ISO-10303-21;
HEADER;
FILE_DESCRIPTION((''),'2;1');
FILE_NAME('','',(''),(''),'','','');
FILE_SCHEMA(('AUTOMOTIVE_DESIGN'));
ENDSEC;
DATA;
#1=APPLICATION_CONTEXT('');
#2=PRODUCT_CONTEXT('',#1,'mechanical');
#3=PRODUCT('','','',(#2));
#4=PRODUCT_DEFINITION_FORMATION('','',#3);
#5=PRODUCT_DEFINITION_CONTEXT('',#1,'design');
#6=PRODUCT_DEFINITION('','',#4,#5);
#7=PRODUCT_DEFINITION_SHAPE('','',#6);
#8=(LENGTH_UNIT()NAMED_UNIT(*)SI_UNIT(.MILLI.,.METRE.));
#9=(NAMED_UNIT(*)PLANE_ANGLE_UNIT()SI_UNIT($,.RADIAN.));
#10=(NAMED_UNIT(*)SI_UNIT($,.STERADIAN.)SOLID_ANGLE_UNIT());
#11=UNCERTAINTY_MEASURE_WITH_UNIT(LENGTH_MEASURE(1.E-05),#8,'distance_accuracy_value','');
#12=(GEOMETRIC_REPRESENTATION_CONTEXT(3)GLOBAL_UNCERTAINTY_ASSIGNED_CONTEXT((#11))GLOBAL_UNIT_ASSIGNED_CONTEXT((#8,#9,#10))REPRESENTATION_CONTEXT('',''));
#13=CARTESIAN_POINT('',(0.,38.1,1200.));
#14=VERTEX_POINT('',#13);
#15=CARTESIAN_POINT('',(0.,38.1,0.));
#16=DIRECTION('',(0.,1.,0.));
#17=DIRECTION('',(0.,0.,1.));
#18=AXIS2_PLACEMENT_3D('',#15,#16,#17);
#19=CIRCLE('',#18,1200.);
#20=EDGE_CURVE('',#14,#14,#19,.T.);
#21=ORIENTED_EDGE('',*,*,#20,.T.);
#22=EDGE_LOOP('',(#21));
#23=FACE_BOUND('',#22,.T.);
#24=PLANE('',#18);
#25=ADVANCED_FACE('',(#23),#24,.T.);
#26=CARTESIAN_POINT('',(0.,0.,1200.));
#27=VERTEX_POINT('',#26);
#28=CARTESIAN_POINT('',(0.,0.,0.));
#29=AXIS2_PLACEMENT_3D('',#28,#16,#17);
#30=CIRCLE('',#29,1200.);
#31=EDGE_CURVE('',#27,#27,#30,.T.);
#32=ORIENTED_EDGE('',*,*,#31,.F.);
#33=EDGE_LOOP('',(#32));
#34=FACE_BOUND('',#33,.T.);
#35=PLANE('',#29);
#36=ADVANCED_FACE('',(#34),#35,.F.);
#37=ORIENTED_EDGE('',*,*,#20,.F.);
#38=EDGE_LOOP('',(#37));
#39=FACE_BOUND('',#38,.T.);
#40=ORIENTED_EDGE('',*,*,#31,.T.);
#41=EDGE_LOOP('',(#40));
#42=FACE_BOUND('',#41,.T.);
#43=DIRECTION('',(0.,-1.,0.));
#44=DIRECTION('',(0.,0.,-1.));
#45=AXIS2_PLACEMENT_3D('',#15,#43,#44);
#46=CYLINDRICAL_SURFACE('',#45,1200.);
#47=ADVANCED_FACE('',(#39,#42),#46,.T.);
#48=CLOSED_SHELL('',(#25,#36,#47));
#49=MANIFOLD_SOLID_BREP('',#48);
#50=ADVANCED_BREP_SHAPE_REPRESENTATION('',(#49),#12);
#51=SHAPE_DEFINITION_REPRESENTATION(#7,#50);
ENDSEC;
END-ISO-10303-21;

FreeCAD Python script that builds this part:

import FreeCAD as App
import Part
import Sketcher
Q = App.Units.Quantity

doc = App.newDocument("Part")
body = doc.addObject("PartDesign::Body", "Body")

# Sketch on XZ plane
sketch1 = body.newObject("Sketcher::SketchObject", "Sketch")
sketch1.AttachmentSupport = (doc.getObject("XZ_Plane"), [""])
sketch1.MapMode = "FlatFace"
sketch1.addGeometry(Part.Circle(App.Vector(0, 0, 0), App.Vector(0, 0, 1), 1200), False)
sketch1.addConstraint(Sketcher.Constraint("Coincident", 0, 3, -1, 1))
sketch1.addConstraint(Sketcher.Constraint("Diameter", 0, Q("2400 mm")))
pad1 = body.newObject("PartDesign::Pad", "Pad")
pad1.Profile = sketch1
pad1.Length = 38.1
pad1.Reversed = True

doc.recompute()
